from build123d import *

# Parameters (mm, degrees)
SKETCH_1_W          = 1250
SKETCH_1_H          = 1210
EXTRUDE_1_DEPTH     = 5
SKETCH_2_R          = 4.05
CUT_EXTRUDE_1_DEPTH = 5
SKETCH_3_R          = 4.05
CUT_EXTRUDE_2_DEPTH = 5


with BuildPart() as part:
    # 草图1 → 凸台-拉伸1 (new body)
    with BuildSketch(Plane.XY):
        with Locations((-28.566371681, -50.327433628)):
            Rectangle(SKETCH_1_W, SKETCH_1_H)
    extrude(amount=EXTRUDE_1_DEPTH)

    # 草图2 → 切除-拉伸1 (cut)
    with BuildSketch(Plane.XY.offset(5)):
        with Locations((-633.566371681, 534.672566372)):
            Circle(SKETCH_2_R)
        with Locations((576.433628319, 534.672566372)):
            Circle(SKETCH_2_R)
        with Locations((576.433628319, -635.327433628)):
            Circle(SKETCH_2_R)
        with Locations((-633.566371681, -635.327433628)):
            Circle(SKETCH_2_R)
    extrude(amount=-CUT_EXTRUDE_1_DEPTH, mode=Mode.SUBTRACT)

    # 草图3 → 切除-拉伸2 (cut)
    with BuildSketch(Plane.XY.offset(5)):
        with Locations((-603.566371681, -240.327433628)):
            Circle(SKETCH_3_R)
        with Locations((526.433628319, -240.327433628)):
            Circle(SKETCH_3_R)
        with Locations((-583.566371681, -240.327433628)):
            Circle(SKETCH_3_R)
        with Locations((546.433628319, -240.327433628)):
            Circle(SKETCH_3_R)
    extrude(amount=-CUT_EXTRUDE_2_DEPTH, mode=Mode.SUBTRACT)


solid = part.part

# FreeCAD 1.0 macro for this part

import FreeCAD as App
import Part
import Sketcher
from FreeCAD import Vector
Q = App.Units.Quantity

doc = App.newDocument("Part")
body = doc.addObject("PartDesign::Body", "Body")

# Sketch on XY plane
sketch1 = doc.addObject("Sketcher::SketchObject", "Sketch")
body.addObject(sketch1)
sketch1.AttachmentSupport = (doc.XY_Plane, [""])
sketch1.MapMode = "FlatFace"
sketch1.addGeometry([
    Part.LineSegment(Vector(-654, 555, 0), Vector(-654, -655, 0)),
    Part.LineSegment(Vector(-654, -655, 0), Vector(596, -655, 0)),
    Part.LineSegment(Vector(596, -655, 0), Vector(596, 555, 0)),
    Part.LineSegment(Vector(596, 555, 0), Vector(-654, 555, 0)),
], False)
sketch1.addConstraint([
    Sketcher.Constraint("Coincident", 0, 2, 1, 1),
    Sketcher.Constraint("Coincident", 1, 2, 2, 1),
    Sketcher.Constraint("Coincident", 2, 2, 3, 1),
    Sketcher.Constraint("Coincident", 3, 2, 0, 1),
    Sketcher.Constraint("Vertical", 0),
    Sketcher.Constraint("Horizontal", 1),
    Sketcher.Constraint("Vertical", 2),
    Sketcher.Constraint("Horizontal", 3),
    Sketcher.Constraint("DistanceX", 1, 1, 1, 2, Q("1250 mm")),
    Sketcher.Constraint("DistanceY", 0, 2, 0, 1, Q("1210 mm")),
    Sketcher.Constraint("DistanceX", 0, 2, -1, 1, Q("653.566372 mm")),
    Sketcher.Constraint("DistanceY", 0, 2, -1, 1, Q("655.327434 mm")),
])
pad1 = doc.addObject("PartDesign::Pad", "Pad")
body.addObject(pad1)
pad1.Profile = sketch1
pad1.Length = 5

# Sketch on XY plane
sketch2 = doc.addObject("Sketcher::SketchObject", "Sketch001")
body.addObject(sketch2)
sketch2.AttachmentSupport = (doc.XY_Plane, [""])
sketch2.MapMode = "FlatFace"
sketch2.AttachmentOffset = App.Placement(Vector(0, 0, 5), App.Rotation())
sketch2.addGeometry([
    Part.Circle(Vector(-633.6, 534.7, 0), Vector(0, 0, 1), 4),
    Part.Circle(Vector(576.4, 534.7, 0), Vector(0, 0, 1), 4),
    Part.Circle(Vector(576.4, -635.3, 0), Vector(0, 0, 1), 4),
    Part.Circle(Vector(-633.6, -635.3, 0), Vector(0, 0, 1), 4),
], False)
sketch2.addConstraint([
    Sketcher.Constraint("Equal", 0, 1),
    Sketcher.Constraint("Equal", 1, 2),
    Sketcher.Constraint("Equal", 2, 3),
    Sketcher.Constraint("Horizontal", 0, 3, 1, 3),
    Sketcher.Constraint("Horizontal", 2, 3, 3, 3),
    Sketcher.Constraint("Vertical", 1, 3, 2, 3),
    Sketcher.Constraint("Vertical", 0, 3, 3, 3),
    Sketcher.Constraint("Diameter", 0, Q("8.1 mm")),
    Sketcher.Constraint("DistanceX", 0, 3, 1, 3, Q("1210 mm")),
    Sketcher.Constraint("DistanceY", 2, 3, 1, 3, Q("1170 mm")),
    Sketcher.Constraint("DistanceX", 0, 3, -1, 1, Q("633.566372 mm")),
    Sketcher.Constraint("DistanceY", -1, 1, 0, 3, Q("534.672566 mm")),
])
pocket1 = doc.addObject("PartDesign::Pocket", "Pocket")
body.addObject(pocket1)
pocket1.Profile = sketch2
pocket1.Length = 5

# Sketch on XY plane
sketch3 = doc.addObject("Sketcher::SketchObject", "Sketch002")
body.addObject(sketch3)
sketch3.AttachmentSupport = (doc.XY_Plane, [""])
sketch3.MapMode = "FlatFace"
sketch3.AttachmentOffset = App.Placement(Vector(0, 0, 5), App.Rotation())
sketch3.addGeometry([
    Part.Circle(Vector(-603.6, -240.3, 0), Vector(0, 0, 1), 4),
    Part.Circle(Vector(526.4, -240.3, 0), Vector(0, 0, 1), 4),
    Part.Circle(Vector(-583.6, -240.3, 0), Vector(0, 0, 1), 4),
    Part.Circle(Vector(546.4, -240.3, 0), Vector(0, 0, 1), 4),
], False)
sketch3.addConstraint([
    Sketcher.Constraint("Equal", 0, 1),
    Sketcher.Constraint("Equal", 1, 2),
    Sketcher.Constraint("Equal", 2, 3),
    Sketcher.Constraint("Horizontal", 0, 3, 1, 3),
    Sketcher.Constraint("Horizontal", 1, 3, 2, 3),
    Sketcher.Constraint("Horizontal", 2, 3, 3, 3),
    Sketcher.Constraint("Diameter", 0, Q("8.1 mm")),
    Sketcher.Constraint("DistanceX", 0, 3, 1, 3, Q("1130 mm")),
    Sketcher.Constraint("DistanceX", 0, 3, 2, 3, Q("20 mm")),
    Sketcher.Constraint("DistanceX", 1, 3, 3, 3, Q("20 mm")),
    Sketcher.Constraint("DistanceX", 0, 3, -1, 1, Q("603.566372 mm")),
    Sketcher.Constraint("DistanceY", 0, 3, -1, 1, Q("240.327434 mm")),
])
pocket2 = doc.addObject("PartDesign::Pocket", "Pocket001")
body.addObject(pocket2)
pocket2.Profile = sketch3
pocket2.Length = 5

doc.recompute()
